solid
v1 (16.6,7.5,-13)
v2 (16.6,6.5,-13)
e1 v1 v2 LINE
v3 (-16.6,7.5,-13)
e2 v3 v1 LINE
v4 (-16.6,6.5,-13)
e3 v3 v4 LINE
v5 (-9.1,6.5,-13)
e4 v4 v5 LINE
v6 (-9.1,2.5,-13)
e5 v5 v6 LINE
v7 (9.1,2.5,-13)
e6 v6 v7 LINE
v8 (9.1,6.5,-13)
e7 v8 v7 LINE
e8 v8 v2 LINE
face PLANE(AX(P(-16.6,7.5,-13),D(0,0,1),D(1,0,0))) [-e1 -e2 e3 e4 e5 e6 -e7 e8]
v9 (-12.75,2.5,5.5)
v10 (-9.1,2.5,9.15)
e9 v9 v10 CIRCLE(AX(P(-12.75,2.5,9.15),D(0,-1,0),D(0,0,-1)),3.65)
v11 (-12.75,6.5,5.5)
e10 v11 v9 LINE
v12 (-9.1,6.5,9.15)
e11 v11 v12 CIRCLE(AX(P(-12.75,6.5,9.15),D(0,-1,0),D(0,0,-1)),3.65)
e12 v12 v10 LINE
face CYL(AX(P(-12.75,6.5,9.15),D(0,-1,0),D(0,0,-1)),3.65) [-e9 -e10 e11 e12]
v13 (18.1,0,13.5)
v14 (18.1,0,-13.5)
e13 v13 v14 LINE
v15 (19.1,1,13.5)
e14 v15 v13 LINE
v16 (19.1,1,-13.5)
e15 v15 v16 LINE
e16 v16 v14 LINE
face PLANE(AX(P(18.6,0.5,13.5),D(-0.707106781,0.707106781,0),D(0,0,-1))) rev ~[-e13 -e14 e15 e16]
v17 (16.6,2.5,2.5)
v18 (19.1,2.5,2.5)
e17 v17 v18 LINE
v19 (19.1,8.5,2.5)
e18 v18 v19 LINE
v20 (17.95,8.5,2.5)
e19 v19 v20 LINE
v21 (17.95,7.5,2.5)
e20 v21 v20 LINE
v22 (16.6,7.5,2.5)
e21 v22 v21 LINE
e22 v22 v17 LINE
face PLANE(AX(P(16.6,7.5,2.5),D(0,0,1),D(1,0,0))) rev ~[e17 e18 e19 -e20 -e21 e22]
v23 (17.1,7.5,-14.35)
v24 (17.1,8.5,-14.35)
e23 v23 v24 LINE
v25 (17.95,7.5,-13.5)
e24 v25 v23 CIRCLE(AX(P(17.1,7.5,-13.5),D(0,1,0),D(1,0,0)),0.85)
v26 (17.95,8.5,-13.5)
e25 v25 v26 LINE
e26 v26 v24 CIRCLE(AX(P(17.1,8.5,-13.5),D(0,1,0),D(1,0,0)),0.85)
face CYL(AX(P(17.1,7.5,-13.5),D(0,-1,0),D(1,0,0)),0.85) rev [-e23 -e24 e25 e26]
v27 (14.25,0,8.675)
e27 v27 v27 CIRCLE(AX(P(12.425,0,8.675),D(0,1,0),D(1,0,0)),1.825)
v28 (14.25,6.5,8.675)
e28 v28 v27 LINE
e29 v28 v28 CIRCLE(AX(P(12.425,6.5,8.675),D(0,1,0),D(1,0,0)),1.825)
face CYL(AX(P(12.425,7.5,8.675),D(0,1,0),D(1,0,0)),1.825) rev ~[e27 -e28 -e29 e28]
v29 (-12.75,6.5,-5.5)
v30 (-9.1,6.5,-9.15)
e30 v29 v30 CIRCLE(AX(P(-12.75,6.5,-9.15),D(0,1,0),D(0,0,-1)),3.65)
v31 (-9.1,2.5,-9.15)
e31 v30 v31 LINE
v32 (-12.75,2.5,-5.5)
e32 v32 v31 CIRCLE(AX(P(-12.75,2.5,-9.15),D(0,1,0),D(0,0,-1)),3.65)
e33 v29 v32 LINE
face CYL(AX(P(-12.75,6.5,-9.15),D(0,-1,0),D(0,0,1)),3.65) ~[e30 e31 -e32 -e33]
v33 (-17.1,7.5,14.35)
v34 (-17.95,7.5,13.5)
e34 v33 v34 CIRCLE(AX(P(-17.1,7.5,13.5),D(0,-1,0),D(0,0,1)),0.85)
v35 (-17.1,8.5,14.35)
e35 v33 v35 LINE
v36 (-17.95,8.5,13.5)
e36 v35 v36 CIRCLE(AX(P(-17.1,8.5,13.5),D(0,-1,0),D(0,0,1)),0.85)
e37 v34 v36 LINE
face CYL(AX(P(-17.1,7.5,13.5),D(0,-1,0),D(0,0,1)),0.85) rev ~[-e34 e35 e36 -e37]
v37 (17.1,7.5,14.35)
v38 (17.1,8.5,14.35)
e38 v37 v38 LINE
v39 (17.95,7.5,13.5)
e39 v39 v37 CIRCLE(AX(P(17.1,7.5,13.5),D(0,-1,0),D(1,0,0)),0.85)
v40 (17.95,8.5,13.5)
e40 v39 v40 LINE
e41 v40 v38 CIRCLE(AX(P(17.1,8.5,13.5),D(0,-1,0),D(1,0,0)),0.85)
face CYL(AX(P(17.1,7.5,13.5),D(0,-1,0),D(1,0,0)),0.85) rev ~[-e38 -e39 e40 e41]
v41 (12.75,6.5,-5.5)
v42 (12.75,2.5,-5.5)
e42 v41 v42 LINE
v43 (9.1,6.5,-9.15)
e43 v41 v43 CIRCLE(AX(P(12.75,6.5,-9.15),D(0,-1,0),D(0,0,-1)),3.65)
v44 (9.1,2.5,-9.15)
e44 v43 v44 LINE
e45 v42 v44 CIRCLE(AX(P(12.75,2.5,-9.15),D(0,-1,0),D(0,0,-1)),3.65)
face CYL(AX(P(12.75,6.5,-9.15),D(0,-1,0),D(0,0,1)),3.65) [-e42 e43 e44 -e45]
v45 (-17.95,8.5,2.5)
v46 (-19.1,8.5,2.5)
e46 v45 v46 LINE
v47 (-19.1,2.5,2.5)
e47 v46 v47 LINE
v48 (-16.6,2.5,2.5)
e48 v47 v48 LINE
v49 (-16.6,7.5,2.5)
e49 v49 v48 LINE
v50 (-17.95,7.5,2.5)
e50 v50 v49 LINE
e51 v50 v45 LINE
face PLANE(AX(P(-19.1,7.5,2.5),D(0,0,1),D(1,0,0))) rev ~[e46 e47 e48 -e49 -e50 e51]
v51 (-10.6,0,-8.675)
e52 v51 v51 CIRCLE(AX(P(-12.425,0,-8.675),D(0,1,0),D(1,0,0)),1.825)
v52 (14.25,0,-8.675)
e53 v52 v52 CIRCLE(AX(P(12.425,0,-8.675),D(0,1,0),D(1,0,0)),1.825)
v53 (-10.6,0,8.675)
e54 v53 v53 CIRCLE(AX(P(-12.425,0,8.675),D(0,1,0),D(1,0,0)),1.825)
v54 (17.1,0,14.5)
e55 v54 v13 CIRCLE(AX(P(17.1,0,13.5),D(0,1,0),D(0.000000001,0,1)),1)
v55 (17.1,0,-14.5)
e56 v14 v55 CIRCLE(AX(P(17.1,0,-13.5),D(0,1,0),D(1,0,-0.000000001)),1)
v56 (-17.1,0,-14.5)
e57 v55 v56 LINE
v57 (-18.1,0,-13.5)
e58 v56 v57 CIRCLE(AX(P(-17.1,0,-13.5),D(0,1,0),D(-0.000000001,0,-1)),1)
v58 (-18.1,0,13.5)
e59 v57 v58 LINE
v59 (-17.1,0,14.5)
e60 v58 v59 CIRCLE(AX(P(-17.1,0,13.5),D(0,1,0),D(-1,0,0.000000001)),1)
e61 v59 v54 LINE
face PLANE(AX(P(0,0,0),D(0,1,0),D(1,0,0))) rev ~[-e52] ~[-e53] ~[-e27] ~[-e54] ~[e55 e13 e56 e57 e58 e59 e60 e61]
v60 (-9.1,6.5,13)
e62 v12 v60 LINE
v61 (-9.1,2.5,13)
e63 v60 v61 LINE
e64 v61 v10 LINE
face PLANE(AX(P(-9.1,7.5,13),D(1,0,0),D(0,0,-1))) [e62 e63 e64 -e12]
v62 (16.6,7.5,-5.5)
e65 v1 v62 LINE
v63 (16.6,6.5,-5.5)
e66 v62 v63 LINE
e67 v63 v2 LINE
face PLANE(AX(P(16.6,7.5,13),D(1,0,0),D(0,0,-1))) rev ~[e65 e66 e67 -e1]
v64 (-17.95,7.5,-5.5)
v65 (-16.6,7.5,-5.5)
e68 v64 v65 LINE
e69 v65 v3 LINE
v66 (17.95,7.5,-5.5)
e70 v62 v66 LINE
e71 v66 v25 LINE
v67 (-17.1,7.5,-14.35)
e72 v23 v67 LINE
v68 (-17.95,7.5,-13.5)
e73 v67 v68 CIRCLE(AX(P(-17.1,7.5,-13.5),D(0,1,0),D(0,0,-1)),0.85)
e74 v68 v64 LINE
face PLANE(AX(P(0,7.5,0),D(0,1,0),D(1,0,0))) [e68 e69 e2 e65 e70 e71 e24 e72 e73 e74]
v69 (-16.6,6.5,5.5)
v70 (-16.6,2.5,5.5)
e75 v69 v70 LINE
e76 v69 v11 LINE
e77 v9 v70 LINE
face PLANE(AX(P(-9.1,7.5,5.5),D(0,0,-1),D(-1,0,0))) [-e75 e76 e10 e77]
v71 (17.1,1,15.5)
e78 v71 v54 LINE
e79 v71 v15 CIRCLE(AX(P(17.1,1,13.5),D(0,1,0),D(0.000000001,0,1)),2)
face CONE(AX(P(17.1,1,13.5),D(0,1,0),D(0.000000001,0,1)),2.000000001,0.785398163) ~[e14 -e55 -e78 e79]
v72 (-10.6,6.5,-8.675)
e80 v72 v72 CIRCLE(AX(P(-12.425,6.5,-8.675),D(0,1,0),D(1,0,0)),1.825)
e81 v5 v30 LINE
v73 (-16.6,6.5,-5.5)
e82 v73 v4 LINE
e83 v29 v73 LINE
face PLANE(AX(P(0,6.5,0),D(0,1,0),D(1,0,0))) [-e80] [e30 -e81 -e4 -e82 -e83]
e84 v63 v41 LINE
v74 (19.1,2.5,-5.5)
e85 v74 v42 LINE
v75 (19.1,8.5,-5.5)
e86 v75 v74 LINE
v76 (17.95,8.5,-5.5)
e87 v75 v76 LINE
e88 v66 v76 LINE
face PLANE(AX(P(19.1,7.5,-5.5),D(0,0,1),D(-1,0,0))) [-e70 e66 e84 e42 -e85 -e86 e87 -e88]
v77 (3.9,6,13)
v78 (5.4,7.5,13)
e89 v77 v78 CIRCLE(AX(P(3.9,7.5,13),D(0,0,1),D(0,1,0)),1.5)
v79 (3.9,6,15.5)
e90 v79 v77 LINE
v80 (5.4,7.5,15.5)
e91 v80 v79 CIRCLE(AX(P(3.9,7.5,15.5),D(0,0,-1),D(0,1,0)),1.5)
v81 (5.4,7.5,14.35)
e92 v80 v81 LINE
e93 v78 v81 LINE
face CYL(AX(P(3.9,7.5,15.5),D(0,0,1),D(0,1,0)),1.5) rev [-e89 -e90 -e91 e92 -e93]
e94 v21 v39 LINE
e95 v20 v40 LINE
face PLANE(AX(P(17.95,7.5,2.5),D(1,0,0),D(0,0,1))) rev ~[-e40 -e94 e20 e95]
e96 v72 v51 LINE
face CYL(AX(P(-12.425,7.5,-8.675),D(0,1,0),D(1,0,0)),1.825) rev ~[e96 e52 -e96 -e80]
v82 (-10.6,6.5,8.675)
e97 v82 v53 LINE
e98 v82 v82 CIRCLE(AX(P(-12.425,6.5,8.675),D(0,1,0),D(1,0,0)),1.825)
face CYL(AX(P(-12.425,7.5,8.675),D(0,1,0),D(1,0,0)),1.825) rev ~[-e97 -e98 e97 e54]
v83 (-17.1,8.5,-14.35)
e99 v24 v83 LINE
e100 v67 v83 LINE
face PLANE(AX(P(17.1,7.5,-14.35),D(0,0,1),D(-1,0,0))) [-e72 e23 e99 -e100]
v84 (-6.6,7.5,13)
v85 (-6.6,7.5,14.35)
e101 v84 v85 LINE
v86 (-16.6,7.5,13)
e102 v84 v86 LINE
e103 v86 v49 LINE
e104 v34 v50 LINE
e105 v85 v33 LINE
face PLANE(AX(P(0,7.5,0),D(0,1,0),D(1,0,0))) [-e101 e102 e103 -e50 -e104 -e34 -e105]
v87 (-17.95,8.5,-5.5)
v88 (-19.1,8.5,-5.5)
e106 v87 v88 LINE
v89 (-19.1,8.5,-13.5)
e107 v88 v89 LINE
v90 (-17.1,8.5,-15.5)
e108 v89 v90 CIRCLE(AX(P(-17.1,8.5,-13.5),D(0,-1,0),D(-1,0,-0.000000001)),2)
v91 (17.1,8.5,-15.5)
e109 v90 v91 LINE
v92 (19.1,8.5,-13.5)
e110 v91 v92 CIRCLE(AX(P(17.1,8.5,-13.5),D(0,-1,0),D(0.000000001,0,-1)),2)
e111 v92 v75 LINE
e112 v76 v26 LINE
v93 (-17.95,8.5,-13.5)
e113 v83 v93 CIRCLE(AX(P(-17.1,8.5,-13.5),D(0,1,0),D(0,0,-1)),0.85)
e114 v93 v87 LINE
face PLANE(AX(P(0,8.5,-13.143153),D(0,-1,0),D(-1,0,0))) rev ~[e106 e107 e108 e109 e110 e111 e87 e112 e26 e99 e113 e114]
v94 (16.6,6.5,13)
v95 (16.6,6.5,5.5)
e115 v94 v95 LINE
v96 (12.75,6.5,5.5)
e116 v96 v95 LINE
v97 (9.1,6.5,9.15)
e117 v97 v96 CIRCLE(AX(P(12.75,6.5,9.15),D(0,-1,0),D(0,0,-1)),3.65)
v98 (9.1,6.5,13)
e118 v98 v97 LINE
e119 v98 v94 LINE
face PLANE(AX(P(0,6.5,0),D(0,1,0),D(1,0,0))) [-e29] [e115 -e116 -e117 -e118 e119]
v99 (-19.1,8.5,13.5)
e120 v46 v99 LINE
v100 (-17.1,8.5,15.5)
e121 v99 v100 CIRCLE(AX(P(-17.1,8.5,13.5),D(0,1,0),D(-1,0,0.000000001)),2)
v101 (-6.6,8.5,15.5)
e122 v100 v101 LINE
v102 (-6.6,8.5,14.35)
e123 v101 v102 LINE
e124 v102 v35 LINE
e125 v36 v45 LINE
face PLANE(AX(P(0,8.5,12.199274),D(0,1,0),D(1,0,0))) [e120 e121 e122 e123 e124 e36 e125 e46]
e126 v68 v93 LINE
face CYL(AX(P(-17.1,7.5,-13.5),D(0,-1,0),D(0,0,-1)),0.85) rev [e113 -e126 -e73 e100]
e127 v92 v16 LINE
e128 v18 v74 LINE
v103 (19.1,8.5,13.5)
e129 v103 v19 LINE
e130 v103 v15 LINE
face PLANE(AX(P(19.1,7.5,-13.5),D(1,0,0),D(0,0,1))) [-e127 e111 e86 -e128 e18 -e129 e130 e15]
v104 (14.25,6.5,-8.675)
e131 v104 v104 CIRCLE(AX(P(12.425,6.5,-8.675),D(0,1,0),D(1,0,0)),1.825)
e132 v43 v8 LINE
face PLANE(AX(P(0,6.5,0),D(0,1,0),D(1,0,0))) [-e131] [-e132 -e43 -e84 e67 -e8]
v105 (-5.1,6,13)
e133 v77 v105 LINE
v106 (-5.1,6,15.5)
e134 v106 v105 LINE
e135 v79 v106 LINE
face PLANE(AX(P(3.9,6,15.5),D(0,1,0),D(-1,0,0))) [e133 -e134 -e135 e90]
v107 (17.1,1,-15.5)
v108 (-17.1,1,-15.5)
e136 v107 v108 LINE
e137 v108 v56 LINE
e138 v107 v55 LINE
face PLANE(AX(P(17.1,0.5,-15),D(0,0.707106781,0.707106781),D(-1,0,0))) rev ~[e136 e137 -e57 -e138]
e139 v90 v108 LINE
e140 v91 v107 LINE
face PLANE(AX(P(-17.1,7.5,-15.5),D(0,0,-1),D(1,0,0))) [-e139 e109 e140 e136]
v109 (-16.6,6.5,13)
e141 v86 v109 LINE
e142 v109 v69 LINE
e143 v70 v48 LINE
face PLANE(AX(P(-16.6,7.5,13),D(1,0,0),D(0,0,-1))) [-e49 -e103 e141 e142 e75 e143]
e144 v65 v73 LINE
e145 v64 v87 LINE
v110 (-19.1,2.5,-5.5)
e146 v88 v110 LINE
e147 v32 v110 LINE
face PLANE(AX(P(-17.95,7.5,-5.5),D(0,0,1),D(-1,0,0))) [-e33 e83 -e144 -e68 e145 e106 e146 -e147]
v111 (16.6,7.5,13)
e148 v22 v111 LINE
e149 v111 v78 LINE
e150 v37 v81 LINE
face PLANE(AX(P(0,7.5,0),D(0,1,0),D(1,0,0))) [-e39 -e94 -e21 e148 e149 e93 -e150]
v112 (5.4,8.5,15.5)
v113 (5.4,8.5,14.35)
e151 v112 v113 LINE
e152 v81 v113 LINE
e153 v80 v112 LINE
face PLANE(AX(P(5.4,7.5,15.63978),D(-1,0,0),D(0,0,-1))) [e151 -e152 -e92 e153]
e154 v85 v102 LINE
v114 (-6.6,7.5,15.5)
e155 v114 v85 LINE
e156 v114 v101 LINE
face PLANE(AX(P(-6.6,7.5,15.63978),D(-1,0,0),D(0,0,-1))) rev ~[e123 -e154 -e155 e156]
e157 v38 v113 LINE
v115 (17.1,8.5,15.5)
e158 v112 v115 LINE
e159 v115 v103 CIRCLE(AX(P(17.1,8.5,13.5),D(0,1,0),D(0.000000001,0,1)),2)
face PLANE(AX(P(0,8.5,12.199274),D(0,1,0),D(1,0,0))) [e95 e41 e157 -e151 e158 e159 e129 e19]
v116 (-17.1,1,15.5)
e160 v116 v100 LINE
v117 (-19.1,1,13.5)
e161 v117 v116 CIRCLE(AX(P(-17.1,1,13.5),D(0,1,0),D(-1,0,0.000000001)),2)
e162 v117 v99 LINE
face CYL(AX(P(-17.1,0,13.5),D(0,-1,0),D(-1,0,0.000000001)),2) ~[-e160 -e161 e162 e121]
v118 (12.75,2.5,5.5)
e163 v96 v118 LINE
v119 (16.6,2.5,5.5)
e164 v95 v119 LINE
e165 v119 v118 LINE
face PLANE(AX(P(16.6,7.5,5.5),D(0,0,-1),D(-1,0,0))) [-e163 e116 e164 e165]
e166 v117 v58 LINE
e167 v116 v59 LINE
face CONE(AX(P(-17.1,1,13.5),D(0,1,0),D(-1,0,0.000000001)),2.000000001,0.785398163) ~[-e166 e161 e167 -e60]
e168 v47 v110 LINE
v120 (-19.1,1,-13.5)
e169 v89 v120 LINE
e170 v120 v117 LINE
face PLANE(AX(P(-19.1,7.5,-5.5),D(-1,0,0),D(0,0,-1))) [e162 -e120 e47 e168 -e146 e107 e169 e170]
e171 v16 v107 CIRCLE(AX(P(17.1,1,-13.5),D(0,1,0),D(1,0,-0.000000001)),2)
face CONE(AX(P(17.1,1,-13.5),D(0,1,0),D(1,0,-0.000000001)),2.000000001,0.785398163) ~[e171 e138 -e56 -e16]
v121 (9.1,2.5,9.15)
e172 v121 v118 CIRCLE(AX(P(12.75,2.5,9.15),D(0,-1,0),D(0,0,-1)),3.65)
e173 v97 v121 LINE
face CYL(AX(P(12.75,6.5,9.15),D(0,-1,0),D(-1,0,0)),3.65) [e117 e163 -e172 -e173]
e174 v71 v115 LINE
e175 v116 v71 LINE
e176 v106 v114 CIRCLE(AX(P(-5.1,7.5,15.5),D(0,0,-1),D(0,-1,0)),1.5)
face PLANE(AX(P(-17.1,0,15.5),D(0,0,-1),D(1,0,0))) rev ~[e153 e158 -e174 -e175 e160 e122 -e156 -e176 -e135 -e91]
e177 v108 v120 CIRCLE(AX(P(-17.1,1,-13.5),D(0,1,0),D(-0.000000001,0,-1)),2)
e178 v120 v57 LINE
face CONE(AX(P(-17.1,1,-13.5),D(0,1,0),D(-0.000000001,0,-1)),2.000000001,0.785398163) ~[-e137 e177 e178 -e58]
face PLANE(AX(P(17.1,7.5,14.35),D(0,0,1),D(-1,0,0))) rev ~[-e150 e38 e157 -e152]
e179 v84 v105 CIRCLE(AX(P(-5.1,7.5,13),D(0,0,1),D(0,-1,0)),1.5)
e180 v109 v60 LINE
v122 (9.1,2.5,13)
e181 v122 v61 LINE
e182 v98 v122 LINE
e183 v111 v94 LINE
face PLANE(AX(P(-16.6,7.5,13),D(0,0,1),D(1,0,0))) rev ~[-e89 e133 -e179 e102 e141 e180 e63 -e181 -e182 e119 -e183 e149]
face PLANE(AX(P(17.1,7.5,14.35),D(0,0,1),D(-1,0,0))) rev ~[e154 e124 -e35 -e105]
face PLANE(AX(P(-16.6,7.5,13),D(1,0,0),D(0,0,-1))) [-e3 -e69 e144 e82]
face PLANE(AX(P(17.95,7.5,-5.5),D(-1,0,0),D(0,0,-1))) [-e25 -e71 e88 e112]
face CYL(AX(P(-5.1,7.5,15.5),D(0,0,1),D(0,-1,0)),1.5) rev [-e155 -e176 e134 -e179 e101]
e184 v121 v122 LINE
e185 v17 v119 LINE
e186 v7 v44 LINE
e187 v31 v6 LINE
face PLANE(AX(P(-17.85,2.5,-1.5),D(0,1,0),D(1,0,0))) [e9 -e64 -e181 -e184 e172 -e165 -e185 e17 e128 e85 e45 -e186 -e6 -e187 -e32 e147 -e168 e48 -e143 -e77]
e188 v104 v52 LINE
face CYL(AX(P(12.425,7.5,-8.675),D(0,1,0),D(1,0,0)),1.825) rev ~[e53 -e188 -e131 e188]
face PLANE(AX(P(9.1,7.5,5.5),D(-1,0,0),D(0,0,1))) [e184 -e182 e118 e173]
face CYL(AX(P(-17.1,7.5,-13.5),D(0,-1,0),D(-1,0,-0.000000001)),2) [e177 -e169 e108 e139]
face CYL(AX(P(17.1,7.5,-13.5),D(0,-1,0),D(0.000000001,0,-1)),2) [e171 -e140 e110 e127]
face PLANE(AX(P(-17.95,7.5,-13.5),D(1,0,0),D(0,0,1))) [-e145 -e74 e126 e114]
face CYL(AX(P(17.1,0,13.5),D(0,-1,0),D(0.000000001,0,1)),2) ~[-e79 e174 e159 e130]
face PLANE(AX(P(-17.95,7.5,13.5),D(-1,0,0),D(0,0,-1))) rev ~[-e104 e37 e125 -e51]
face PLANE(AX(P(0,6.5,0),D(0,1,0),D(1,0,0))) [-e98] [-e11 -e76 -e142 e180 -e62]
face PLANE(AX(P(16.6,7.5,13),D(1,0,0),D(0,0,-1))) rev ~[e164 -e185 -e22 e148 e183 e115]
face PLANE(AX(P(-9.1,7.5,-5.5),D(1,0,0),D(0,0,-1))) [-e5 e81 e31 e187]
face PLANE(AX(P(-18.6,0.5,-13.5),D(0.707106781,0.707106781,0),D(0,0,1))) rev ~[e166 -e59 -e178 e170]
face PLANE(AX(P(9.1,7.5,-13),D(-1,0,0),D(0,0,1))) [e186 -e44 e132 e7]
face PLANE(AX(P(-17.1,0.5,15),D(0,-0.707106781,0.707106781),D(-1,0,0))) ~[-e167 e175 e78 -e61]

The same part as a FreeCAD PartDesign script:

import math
import FreeCAD as App
import Part
import Sketcher
from FreeCAD import Vector


def edges_at(feature, points):
    """Names of the edges that pass closest to the given points."""
    edges = feature.Shape.Edges
    near = lambda p: min(range(len(edges)), key=lambda i: edges[i].distToShape(Part.Vertex(*p))[0])
    return sorted({f"Edge{near(p) + 1}" for p in points})

doc = App.newDocument("Part")
body = doc.addObject("PartDesign::Body", "Body")

sketch1 = body.newObject("Sketcher::SketchObject", "Sketch")
sketch1.AttachmentSupport = (doc.getObject("XZ_Plane"), [""])
sketch1.MapMode = "FlatFace"
sketch1.addGeometry(Part.LineSegment(Vector(-17.1, 15.5, 0), Vector(17.1, 15.5, 0)), False)
sketch1.addGeometry(Part.ArcOfCircle(Part.Circle(Vector(17.1, 13.5, 0), Vector(0, 0, 1), 2), math.radians(0), math.radians(90)), False)
sketch1.addGeometry(Part.LineSegment(Vector(19.1, 13.5, 0), Vector(19.1, -13.5, 0)), False)
sketch1.addGeometry(Part.ArcOfCircle(Part.Circle(Vector(17.1, -13.5, 0), Vector(0, 0, 1), 2), math.radians(-90), math.radians(0)), False)
sketch1.addGeometry(Part.LineSegment(Vector(17.1, -15.5, 0), Vector(-17.1, -15.5, 0)), False)
sketch1.addGeometry(Part.ArcOfCircle(Part.Circle(Vector(-17.1, -13.5, 0), Vector(0, 0, 1), 2), math.radians(-180), math.radians(-90)), False)
sketch1.addGeometry(Part.LineSegment(Vector(-19.1, -13.5, 0), Vector(-19.1, 13.5, 0)), False)
sketch1.addGeometry(Part.ArcOfCircle(Part.Circle(Vector(-17.1, 13.5, 0), Vector(0, 0, 1), 2), math.radians(90), math.radians(180)), False)
sketch1.addConstraint(Sketcher.Constraint("Tangent", 0, 2, 1, 2))
sketch1.addConstraint(Sketcher.Constraint("Tangent", 1, 1, 2, 1))
sketch1.addConstraint(Sketcher.Constraint("Tangent", 2, 2, 3, 2))
sketch1.addConstraint(Sketcher.Constraint("Tangent", 3, 1, 4, 1))
sketch1.addConstraint(Sketcher.Constraint("Tangent", 4, 2, 5, 2))
sketch1.addConstraint(Sketcher.Constraint("Tangent", 5, 1, 6, 1))
sketch1.addConstraint(Sketcher.Constraint("Tangent", 6, 2, 7, 2))
sketch1.addConstraint(Sketcher.Constraint("Tangent", 7, 1, 0, 1))
sketch1.addConstraint(Sketcher.Constraint("Horizontal", 0))
sketch1.addConstraint(Sketcher.Constraint("Vertical", 2))
sketch1.addConstraint(Sketcher.Constraint("Horizontal", 4))
sketch1.addConstraint(Sketcher.Constraint("Vertical", 6))
sketch1.addConstraint(Sketcher.Constraint("Equal", 1, 3))
sketch1.addConstraint(Sketcher.Constraint("Equal", 3, 5))
sketch1.addConstraint(Sketcher.Constraint("Equal", 5, 7))
sketch1.addConstraint(Sketcher.Constraint("Symmetric", 1, 3, 5, 3, -1, 1))
sketch1.addConstraint(Sketcher.Constraint("Radius", 1, 2.0))
sketch1.addConstraint(Sketcher.Constraint("DistanceY", 2, 2, 2, 1, 27.0))
sketch1.addConstraint(Sketcher.Constraint("DistanceX", 0, 1, 0, 2, 34.2))
pad1 = body.newObject("PartDesign::Pad", "Pad")
pad1.Profile = sketch1
pad1.Length = 7.5
pad1.Reversed = True

sketch2 = body.newObject("Sketcher::SketchObject", "Sketch001")
sketch2.AttachmentSupport = (doc.getObject("XZ_Plane"), [""])
sketch2.MapMode = "FlatFace"
sketch2.AttachmentOffset = App.Placement(Vector(0, 0, -7.5), App.Rotation())
sketch2.addGeometry(Part.LineSegment(Vector(-9.1, -5.5, 0), Vector(-16.6, -5.5, 0)), False)
sketch2.addGeometry(Part.LineSegment(Vector(-16.6, -5.5, 0), Vector(-16.6, 5.5, 0)), False)
sketch2.addGeometry(Part.LineSegment(Vector(-16.6, 5.5, 0), Vector(-9.1, 5.5, 0)), False)
sketch2.addGeometry(Part.LineSegment(Vector(-9.1, 5.5, 0), Vector(-9.1, 13, 0)), False)
sketch2.addGeometry(Part.LineSegment(Vector(-9.1, 13, 0), Vector(9.1, 13, 0)), False)
sketch2.addGeometry(Part.LineSegment(Vector(9.1, 13, 0), Vector(9.1, 5.5, 0)), False)
sketch2.addGeometry(Part.LineSegment(Vector(9.1, 5.5, 0), Vector(16.6, 5.5, 0)), False)
sketch2.addGeometry(Part.LineSegment(Vector(16.6, 5.5, 0), Vector(16.6, -5.5, 0)), False)
sketch2.addGeometry(Part.LineSegment(Vector(16.6, -5.5, 0), Vector(9.1, -5.5, 0)), False)
sketch2.addGeometry(Part.LineSegment(Vector(9.1, -5.5, 0), Vector(9.1, -13, 0)), False)
sketch2.addGeometry(Part.LineSegment(Vector(9.1, -13, 0), Vector(-9.1, -13, 0)), False)
sketch2.addGeometry(Part.LineSegment(Vector(-9.1, -13, 0), Vector(-9.1, -5.5, 0)), False)
sketch2.addConstraint(Sketcher.Constraint("Coincident", 0, 2, 1, 1))
sketch2.addConstraint(Sketcher.Constraint("Coincident", 1, 2, 2, 1))
sketch2.addConstraint(Sketcher.Constraint("Coincident", 2, 2, 3, 1))
sketch2.addConstraint(Sketcher.Constraint("Coincident", 3, 2, 4, 1))
sketch2.addConstraint(Sketcher.Constraint("Coincident", 4, 2, 5, 1))
sketch2.addConstraint(Sketcher.Constraint("Coincident", 5, 2, 6, 1))
sketch2.addConstraint(Sketcher.Constraint("Coincident", 6, 2, 7, 1))
sketch2.addConstraint(Sketcher.Constraint("Coincident", 7, 2, 8, 1))
sketch2.addConstraint(Sketcher.Constraint("Coincident", 8, 2, 9, 1))
sketch2.addConstraint(Sketcher.Constraint("Coincident", 9, 2, 10, 1))
sketch2.addConstraint(Sketcher.Constraint("Coincident", 10, 2, 11, 1))
sketch2.addConstraint(Sketcher.Constraint("Coincident", 11, 2, 0, 1))
sketch2.addConstraint(Sketcher.Constraint("Horizontal", 0))
sketch2.addConstraint(Sketcher.Constraint("Vertical", 1))
sketch2.addConstraint(Sketcher.Constraint("Horizontal", 2))
sketch2.addConstraint(Sketcher.Constraint("Vertical", 3))
sketch2.addConstraint(Sketcher.Constraint("Horizontal", 4))
sketch2.addConstraint(Sketcher.Constraint("Vertical", 5))
sketch2.addConstraint(Sketcher.Constraint("Horizontal", 6))
sketch2.addConstraint(Sketcher.Constraint("Vertical", 7))
sketch2.addConstraint(Sketcher.Constraint("Horizontal", 8))
sketch2.addConstraint(Sketcher.Constraint("Vertical", 9))
sketch2.addConstraint(Sketcher.Constraint("Horizontal", 10))
sketch2.addConstraint(Sketcher.Constraint("Vertical", 11))
sketch2.addConstraint(Sketcher.Constraint("Symmetric", 0, 2, 6, 2, -1, 1))
sketch2.addConstraint(Sketcher.Constraint("Symmetric", 2, 2, 8, 2, -1, 1))
sketch2.addConstraint(Sketcher.Constraint("Symmetric", 4, 2, 10, 2, -1, 1))
sketch2.addConstraint(Sketcher.Constraint("Symmetric", 2, 2, 5, 2, -2))
sketch2.addConstraint(Sketcher.Constraint("Equal", 8, 3))
sketch2.addConstraint(Sketcher.Constraint("DistanceY", 1, 1, 1, 2, 11.0))
sketch2.addConstraint(Sketcher.Constraint("DistanceX", 0, 2, 0, 1, 7.5))
sketch2.addConstraint(Sketcher.Constraint("DistanceX", 4, 1, 4, 2, 18.2))
pocket1 = body.newObject("PartDesign::Pocket", "Pocket")
pocket1.Profile = sketch2
pocket1.Length = 5
pocket1.Reversed = True

sketch3 = body.newObject("Sketcher::SketchObject", "Sketch002")
sketch3.AttachmentSupport = (doc.getObject("XZ_Plane"), [""])
sketch3.MapMode = "FlatFace"
sketch3.AttachmentOffset = App.Placement(Vector(0, 0, -7.5), App.Rotation())
sketch3.addGeometry(Part.Circle(Vector(-12.425, -8.675, 0), Vector(0, 0, 1), 1.825), False)
sketch3.addGeometry(Part.Circle(Vector(12.425, -8.675, 0), Vector(0, 0, 1), 1.825), False)
sketch3.addGeometry(Part.Circle(Vector(12.425, 8.675, 0), Vector(0, 0, 1), 1.825), False)
sketch3.addGeometry(Part.Circle(Vector(-12.425, 8.675, 0), Vector(0, 0, 1), 1.825), False)
sketch3.addConstraint(Sketcher.Constraint("Equal", 0, 1))
sketch3.addConstraint(Sketcher.Constraint("Equal", 1, 2))
sketch3.addConstraint(Sketcher.Constraint("Equal", 2, 3))
sketch3.addConstraint(Sketcher.Constraint("Symmetric", 0, 3, 2, 3, -1, 1))
sketch3.addConstraint(Sketcher.Constraint("Symmetric", 1, 3, 3, 3, -1, 1))
sketch3.addConstraint(Sketcher.Constraint("Symmetric", 0, 3, 1, 3, -2))
sketch3.addConstraint(Sketcher.Constraint("Diameter", 0, 3.65))
sketch3.addConstraint(Sketcher.Constraint("DistanceX", 0, 3, 1, 3, 24.85))
sketch3.addConstraint(Sketcher.Constraint("DistanceY", 1, 3, 2, 3, 17.35))
pocket2 = body.newObject("PartDesign::Pocket", "Pocket001")
pocket2.Profile = sketch3
pocket2.Length = 13.5
pocket2.Reversed = True

sketch4 = body.newObject("Sketcher::SketchObject", "Sketch003")
sketch4.AttachmentSupport = (doc.getObject("XZ_Plane"), [""])
sketch4.MapMode = "FlatFace"
sketch4.AttachmentOffset = App.Placement(Vector(0, 0, -7.5), App.Rotation())
sketch4.addGeometry(Part.LineSegment(Vector(-16.6, -13, 0), Vector(-16.6, 13, 0)), False)
sketch4.addGeometry(Part.LineSegment(Vector(-16.6, 13, 0), Vector(16.6, 13, 0)), False)
sketch4.addGeometry(Part.LineSegment(Vector(16.6, 13, 0), Vector(16.6, -13, 0)), False)
sketch4.addGeometry(Part.LineSegment(Vector(16.6, -13, 0), Vector(-16.6, -13, 0)), False)
sketch4.addConstraint(Sketcher.Constraint("Coincident", 0, 2, 1, 1))
sketch4.addConstraint(Sketcher.Constraint("Coincident", 1, 2, 2, 1))
sketch4.addConstraint(Sketcher.Constraint("Coincident", 2, 2, 3, 1))
sketch4.addConstraint(Sketcher.Constraint("Coincident", 3, 2, 0, 1))
sketch4.addConstraint(Sketcher.Constraint("Vertical", 0))
sketch4.addConstraint(Sketcher.Constraint("Horizontal", 1))
sketch4.addConstraint(Sketcher.Constraint("Vertical", 2))
sketch4.addConstraint(Sketcher.Constraint("Horizontal", 3))
sketch4.addConstraint(Sketcher.Constraint("Symmetric", 0, 2, 2, 2, -1, 1))
sketch4.addConstraint(Sketcher.Constraint("DistanceY", 0, 1, 0, 2, 26.0))
sketch4.addConstraint(Sketcher.Constraint("DistanceX", 1, 1, 1, 2, 33.2))
pocket3 = body.newObject("PartDesign::Pocket", "Pocket002")
pocket3.Profile = sketch4
pocket3.Length = 1
pocket3.Reversed = True

sketch5 = body.newObject("Sketcher::SketchObject", "Sketch004")
sketch5.AttachmentSupport = (doc.getObject("XZ_Plane"), [""])
sketch5.MapMode = "FlatFace"
sketch5.AttachmentOffset = App.Placement(Vector(0, 0, -7.5), App.Rotation())
sketch5.addGeometry(Part.LineSegment(Vector(-19.1, -5.5, 0), Vector(-19.1, 2.5, 0)), False)
sketch5.addGeometry(Part.LineSegment(Vector(-19.1, 2.5, 0), Vector(-16.6, 2.5, 0)), False)
sketch5.addGeometry(Part.LineSegment(Vector(-16.6, 2.5, 0), Vector(-16.6, -5.5, 0)), False)
sketch5.addGeometry(Part.LineSegment(Vector(-16.6, -5.5, 0), Vector(-19.1, -5.5, 0)), False)
sketch5.addGeometry(Part.LineSegment(Vector(16.6, -5.5, 0), Vector(16.6, 2.5, 0)), False)
sketch5.addGeometry(Part.LineSegment(Vector(16.6, 2.5, 0), Vector(19.1, 2.5, 0)), False)
sketch5.addGeometry(Part.LineSegment(Vector(19.1, 2.5, 0), Vector(19.1, -5.5, 0)), False)
sketch5.addGeometry(Part.LineSegment(Vector(19.1, -5.5, 0), Vector(16.6, -5.5, 0)), False)
sketch5.addConstraint(Sketcher.Constraint("Coincident", 0, 2, 1, 1))
sketch5.addConstraint(Sketcher.Constraint("Coincident", 1, 2, 2, 1))
sketch5.addConstraint(Sketcher.Constraint("Coincident", 2, 2, 3, 1))
sketch5.addConstraint(Sketcher.Constraint("Coincident", 3, 2, 0, 1))
sketch5.addConstraint(Sketcher.Constraint("Coincident", 4, 2, 5, 1))
sketch5.addConstraint(Sketcher.Constraint("Coincident", 5, 2, 6, 1))
sketch5.addConstraint(Sketcher.Constraint("Coincident", 6, 2, 7, 1))
sketch5.addConstraint(Sketcher.Constraint("Coincident", 7, 2, 4, 1))
sketch5.addConstraint(Sketcher.Constraint("Vertical", 0))
sketch5.addConstraint(Sketcher.Constraint("Horizontal", 1))
sketch5.addConstraint(Sketcher.Constraint("Vertical", 2))
sketch5.addConstraint(Sketcher.Constraint("Horizontal", 3))
sketch5.addConstraint(Sketcher.Constraint("Vertical", 4))
sketch5.addConstraint(Sketcher.Constraint("Horizontal", 5))
sketch5.addConstraint(Sketcher.Constraint("Vertical", 6))
sketch5.addConstraint(Sketcher.Constraint("Horizontal", 7))
sketch5.addConstraint(Sketcher.Constraint("Symmetric", 1, 2, 4, 2, -2))
sketch5.addConstraint(Sketcher.Constraint("Symmetric", 3, 2, 6, 2, -2))
sketch5.addConstraint(Sketcher.Constraint("DistanceY", 0, 1, 0, 2, 8.0))
sketch5.addConstraint(Sketcher.Constraint("DistanceX", 1, 1, 1, 2, 2.5))
sketch5.addConstraint(Sketcher.Constraint("DistanceX", 0, 2, -1, 1, 19.1))
sketch5.addConstraint(Sketcher.Constraint("DistanceY", -1, 1, 0, 2, 2.5))
pocket4 = body.newObject("PartDesign::Pocket", "Pocket003")
pocket4.Profile = sketch5
pocket4.Length = 5
pocket4.Reversed = True

sketch6 = body.newObject("Sketcher::SketchObject", "Sketch005")
sketch6.AttachmentSupport = (doc.getObject("XZ_Plane"), [""])
sketch6.MapMode = "FlatFace"
sketch6.AttachmentOffset = App.Placement(Vector(0, 0, -7.5), App.Rotation())
sketch6.addGeometry(Part.LineSegment(Vector(-19.1, -5.5, 0), Vector(-17.95, -5.5, 0)), False)
sketch6.addGeometry(Part.LineSegment(Vector(-17.95, -5.5, 0), Vector(-17.95, -13.5, 0)), False)
sketch6.addGeometry(Part.ArcOfCircle(Part.Circle(Vector(-17.1, -13.5, 0), Vector(0, 0, 1), 0.85), math.radians(180), math.radians(270)), False)
sketch6.addGeometry(Part.LineSegment(Vector(-17.1, -14.35, 0), Vector(17.1, -14.35, 0)), False)
sketch6.addGeometry(Part.ArcOfCircle(Part.Circle(Vector(17.1, -13.5, 0), Vector(0, 0, 1), 0.85), math.radians(-90), math.radians(0)), False)
sketch6.addGeometry(Part.LineSegment(Vector(17.95, -13.5, 0), Vector(17.95, -5.5, 0)), False)
sketch6.addGeometry(Part.LineSegment(Vector(17.95, -5.5, 0), Vector(19.1, -5.5, 0)), False)
sketch6.addGeometry(Part.LineSegment(Vector(19.1, -5.5, 0), Vector(19.1, -13.5, 0)), False)
sketch6.addGeometry(Part.ArcOfCircle(Part.Circle(Vector(17.1, -13.5, 0), Vector(0, 0, 1), 2), math.radians(-90), math.radians(0)), False)
sketch6.addGeometry(Part.LineSegment(Vector(17.1, -15.5, 0), Vector(-17.1, -15.5, 0)), False)
sketch6.addGeometry(Part.ArcOfCircle(Part.Circle(Vector(-17.1, -13.5, 0), Vector(0, 0, 1), 2), math.radians(-180), math.radians(-90)), False)
sketch6.addGeometry(Part.LineSegment(Vector(-19.1, -13.5, 0), Vector(-19.1, -5.5, 0)), False)
sketch6.addGeometry(Part.LineSegment(Vector(-17.95, 2.5, 0), Vector(-19.1, 2.5, 0)), False)
sketch6.addGeometry(Part.LineSegment(Vector(-19.1, 2.5, 0), Vector(-19.1, 13.5, 0)), False)
sketch6.addGeometry(Part.ArcOfCircle(Part.Circle(Vector(-17.1, 13.5, 0), Vector(0, 0, 1), 2), math.radians(90), math.radians(180)), False)
sketch6.addGeometry(Part.LineSegment(Vector(-17.1, 15.5, 0), Vector(17.1, 15.5, 0)), False)
sketch6.addGeometry(Part.ArcOfCircle(Part.Circle(Vector(17.1, 13.5, 0), Vector(0, 0, 1), 2), math.radians(0), math.radians(90)), False)
sketch6.addGeometry(Part.LineSegment(Vector(19.1, 13.5, 0), Vector(19.1, 2.5, 0)), False)
sketch6.addGeometry(Part.LineSegment(Vector(19.1, 2.5, 0), Vector(17.95, 2.5, 0)), False)
sketch6.addGeometry(Part.LineSegment(Vector(17.95, 2.5, 0), Vector(17.95, 13.5, 0)), False)
sketch6.addGeometry(Part.ArcOfCircle(Part.Circle(Vector(17.1, 13.5, 0), Vector(0, 0, 1), 0.85), math.radians(0), math.radians(90)), False)
sketch6.addGeometry(Part.LineSegment(Vector(17.1, 14.35, 0), Vector(-17.1, 14.35, 0)), False)
sketch6.addGeometry(Part.ArcOfCircle(Part.Circle(Vector(-17.1, 13.5, 0), Vector(0, 0, 1), 0.85), math.radians(90), math.radians(180)), False)
sketch6.addGeometry(Part.LineSegment(Vector(-17.95, 13.5, 0), Vector(-17.95, 2.5, 0)), False)
sketch6.addConstraint(Sketcher.Constraint("Coincident", 0, 2, 1, 1))
sketch6.addConstraint(Sketcher.Constraint("Tangent", 1, 2, 2, 1))
sketch6.addConstraint(Sketcher.Constraint("Tangent", 2, 2, 3, 1))
sketch6.addConstraint(Sketcher.Constraint("Tangent", 3, 2, 4, 1))
sketch6.addConstraint(Sketcher.Constraint("Tangent", 4, 2, 5, 1))
sketch6.addConstraint(Sketcher.Constraint("Coincident", 5, 2, 6, 1))
sketch6.addConstraint(Sketcher.Constraint("Coincident", 6, 2, 7, 1))
sketch6.addConstraint(Sketcher.Constraint("Tangent", 7, 2, 8, 2))
sketch6.addConstraint(Sketcher.Constraint("Tangent", 8, 1, 9, 1))
sketch6.addConstraint(Sketcher.Constraint("Tangent", 9, 2, 10, 2))
sketch6.addConstraint(Sketcher.Constraint("Tangent", 10, 1, 11, 1))
sketch6.addConstraint(Sketcher.Constraint("Coincident", 11, 2, 0, 1))
sketch6.addConstraint(Sketcher.Constraint("Coincident", 12, 2, 13, 1))
sketch6.addConstraint(Sketcher.Constraint("Tangent", 13, 2, 14, 2))
sketch6.addConstraint(Sketcher.Constraint("Tangent", 14, 1, 15, 1))
sketch6.addConstraint(Sketcher.Constraint("Tangent", 15, 2, 16, 2))
sketch6.addConstraint(Sketcher.Constraint("Tangent", 16, 1, 17, 1))
sketch6.addConstraint(Sketcher.Constraint("Coincident", 17, 2, 18, 1))
sketch6.addConstraint(Sketcher.Constraint("Coincident", 18, 2, 19, 1))
sketch6.addConstraint(Sketcher.Constraint("Tangent", 19, 2, 20, 1))
sketch6.addConstraint(Sketcher.Constraint("Tangent", 20, 2, 21, 1))
sketch6.addConstraint(Sketcher.Constraint("Tangent", 21, 2, 22, 1))
sketch6.addConstraint(Sketcher.Constraint("Tangent", 22, 2, 23, 1))
sketch6.addConstraint(Sketcher.Constraint("Coincident", 23, 2, 12, 1))
sketch6.addConstraint(Sketcher.Constraint("Horizontal", 0))
sketch6.addConstraint(Sketcher.Constraint("Vertical", 1))
sketch6.addConstraint(Sketcher.Constraint("Horizontal", 3))
sketch6.addConstraint(Sketcher.Constraint("Vertical", 5))
sketch6.addConstraint(Sketcher.Constraint("Horizontal", 6))
sketch6.addConstraint(Sketcher.Constraint("Vertical", 7))
sketch6.addConstraint(Sketcher.Constraint("Horizontal", 9))
sketch6.addConstraint(Sketcher.Constraint("Vertical", 11))
sketch6.addConstraint(Sketcher.Constraint("Horizontal", 12))
sketch6.addConstraint(Sketcher.Constraint("Vertical", 13))
sketch6.addConstraint(Sketcher.Constraint("Horizontal", 15))
sketch6.addConstraint(Sketcher.Constraint("Vertical", 17))
sketch6.addConstraint(Sketcher.Constraint("Horizontal", 18))
sketch6.addConstraint(Sketcher.Constraint("Vertical", 19))
sketch6.addConstraint(Sketcher.Constraint("Horizontal", 21))
sketch6.addConstraint(Sketcher.Constraint("Vertical", 23))
sketch6.addConstraint(Sketcher.Constraint("Coincident", 8, 3, 4, 3))
sketch6.addConstraint(Sketcher.Constraint("Coincident", 10, 3, 2, 3))
sketch6.addConstraint(Sketcher.Constraint("Coincident", 20, 3, 16, 3))
sketch6.addConstraint(Sketcher.Constraint("Coincident", 22, 3, 14, 3))
sketch6.addConstraint(Sketcher.Constraint("Equal", 2, 4))
sketch6.addConstraint(Sketcher.Constraint("Equal", 10, 14))
sketch6.addConstraint(Sketcher.Constraint("Equal", 14, 16))
sketch6.addConstraint(Sketcher.Constraint("Equal", 4, 20))
sketch6.addConstraint(Sketcher.Constraint("Symmetric", 4, 3, 14, 3, -1, 1))
sketch6.addConstraint(Sketcher.Constraint("Symmetric", 0, 2, 5, 2, -2))
sketch6.addConstraint(Sketcher.Constraint("Symmetric", 12, 2, 17, 2, -2))
sketch6.addConstraint(Sketcher.Constraint("Radius", 8, 2.0))
sketch6.addConstraint(Sketcher.Constraint("DistanceY", 1, 2, 1, 1, 8.0))
sketch6.addConstraint(Sketcher.Constraint("DistanceY", 13, 1, 13, 2, 11.0))
sketch6.addConstraint(Sketcher.Constraint("Radius", 2, 0.85))
sketch6.addConstraint(Sketcher.Constraint("DistanceX", 3, 1, 3, 2, 34.2))
sketch6.addConstraint(Sketcher.Constraint("DistanceY", 10, 3, 14, 3, 27.0))
pad2 = body.newObject("PartDesign::Pad", "Pad001")
pad2.Profile = sketch6
pad2.Length = 1
pad2.Reversed = True

sketch7 = body.newObject("Sketcher::SketchObject", "Sketch006")
sketch7.AttachmentSupport = (doc.getObject("XY_Plane"), [""])
sketch7.MapMode = "FlatFace"
sketch7.AttachmentOffset = App.Placement(Vector(0, 0, 15.5), App.Rotation())
sketch7.addGeometry(Part.LineSegment(Vector(3.9, 9, 0), Vector(-5.1, 9, 0)), False)
sketch7.addGeometry(Part.ArcOfCircle(Part.Circle(Vector(-5.1, 7.5, 0), Vector(0, 0, 1), 1.5), math.radians(90), math.radians(270)), False)
sketch7.addGeometry(Part.LineSegment(Vector(-5.1, 6, 0), Vector(3.9, 6, 0)), False)
sketch7.addGeometry(Part.ArcOfCircle(Part.Circle(Vector(3.9, 7.5, 0), Vector(0, 0, 1), 1.5), math.radians(-90), math.radians(90)), False)
sketch7.addConstraint(Sketcher.Constraint("Tangent", 0, 2, 1, 1))
sketch7.addConstraint(Sketcher.Constraint("Tangent", 1, 2, 2, 1))
sketch7.addConstraint(Sketcher.Constraint("Tangent", 2, 2, 3, 1))
sketch7.addConstraint(Sketcher.Constraint("Tangent", 3, 2, 0, 1))
sketch7.addConstraint(Sketcher.Constraint("Horizontal", 0))
sketch7.addConstraint(Sketcher.Constraint("Horizontal", 2))
sketch7.addConstraint(Sketcher.Constraint("Radius", 1, 1.5))
sketch7.addConstraint(Sketcher.Constraint("DistanceX", 0, 2, 0, 1, 9.0))
sketch7.addConstraint(Sketcher.Constraint("DistanceY", -1, 1, 0, 2, 9.0))
sketch7.addConstraint(Sketcher.Constraint("DistanceX", 1, 3, -1, 1, 5.1))
pocket5 = body.newObject("PartDesign::Pocket", "Pocket004")
pocket5.Profile = sketch7
pocket5.Length = 10

sketch8 = body.newObject("Sketcher::SketchObject", "Sketch007")
sketch8.AttachmentSupport = (doc.getObject("XZ_Plane"), [""])
sketch8.MapMode = "FlatFace"
sketch8.AttachmentOffset = App.Placement(Vector(0, 0, -7.5), App.Rotation())
sketch8.addGeometry(Part.LineSegment(Vector(-6.6, 14.35, 0), Vector(-6.6, 15.63978, 0)), False)
sketch8.addGeometry(Part.LineSegment(Vector(-6.6, 15.63978, 0), Vector(-5.682482, 15.63978, 0)), False)
sketch8.addGeometry(Part.LineSegment(Vector(-5.682482, 15.63978, 0), Vector(-5.682482, 14.35, 0)), False)
sketch8.addGeometry(Part.LineSegment(Vector(-5.682482, 14.35, 0), Vector(-6.6, 14.35, 0)), False)
sketch8.addGeometry(Part.LineSegment(Vector(4.695597, 14.35, 0), Vector(4.695597, 15.63978, 0)), False)
sketch8.addGeometry(Part.LineSegment(Vector(4.695597, 15.63978, 0), Vector(5.4, 15.63978, 0)), False)
sketch8.addGeometry(Part.LineSegment(Vector(5.4, 15.63978, 0), Vector(5.4, 14.35, 0)), False)
sketch8.addGeometry(Part.LineSegment(Vector(5.4, 14.35, 0), Vector(4.695597, 14.35, 0)), False)
sketch8.addConstraint(Sketcher.Constraint("Coincident", 0, 2, 1, 1))
sketch8.addConstraint(Sketcher.Constraint("Coincident", 1, 2, 2, 1))
sketch8.addConstraint(Sketcher.Constraint("Coincident", 2, 2, 3, 1))
sketch8.addConstraint(Sketcher.Constraint("Coincident", 3, 2, 0, 1))
sketch8.addConstraint(Sketcher.Constraint("Coincident", 4, 2, 5, 1))
sketch8.addConstraint(Sketcher.Constraint("Coincident", 5, 2, 6, 1))
sketch8.addConstraint(Sketcher.Constraint("Coincident", 6, 2, 7, 1))
sketch8.addConstraint(Sketcher.Constraint("Coincident", 7, 2, 4, 1))
sketch8.addConstraint(Sketcher.Constraint("Vertical", 0))
sketch8.addConstraint(Sketcher.Constraint("Horizontal", 1))
sketch8.addConstraint(Sketcher.Constraint("Vertical", 2))
sketch8.addConstraint(Sketcher.Constraint("Horizontal", 3))
sketch8.addConstraint(Sketcher.Constraint("Vertical", 4))
sketch8.addConstraint(Sketcher.Constraint("Horizontal", 5))
sketch8.addConstraint(Sketcher.Constraint("Vertical", 6))
sketch8.addConstraint(Sketcher.Constraint("Horizontal", 7))
sketch8.addConstraint(Sketcher.Constraint("Horizontal", 1, 2, 4, 2))
sketch8.addConstraint(Sketcher.Constraint("Horizontal", 3, 2, 6, 2))
sketch8.addConstraint(Sketcher.Constraint("DistanceX", 0, 2, 5, 2, 12.0))
sketch8.addConstraint(Sketcher.Constraint("DistanceX", 0, 2, -1, 1, 6.6))
sketch8.addConstraint(Sketcher.Constraint("DistanceY", -1, 1, 2, 2, 14.35))
sketch8.addConstraint(Sketcher.Constraint("DistanceY", 0, 1, 0, 2, 1.28978))
sketch8.addConstraint(Sketcher.Constraint("DistanceX", 1, 1, 1, 2, 0.917518))
sketch8.addConstraint(Sketcher.Constraint("DistanceX", 5, 1, 5, 2, 0.704403))
pocket6 = body.newObject("PartDesign::Pocket", "Pocket005")
pocket6.Profile = sketch8
pocket6.Length = 1
doc.recompute()

chamfer = body.newObject("PartDesign::Chamfer", "Chamfer")
chamfer.Base = (pocket6, edges_at(pocket6, [
    (-19.1, 0, 0),
    (-18.514, 0, -14.914),
    (0, 0, -15.5),
    (18.514, 0, -14.914),
    (19.1, 0, 0),
    (18.514, 0, 14.914),
    (0, 0, 15.5),
    (-18.514, 0, 14.914),
]))
chamfer.Size = 1
doc.recompute()

fillet = body.newObject("PartDesign::Fillet", "Fillet")
fillet.Base = (chamfer, edges_at(chamfer, [
    (-9.1, 4.5, 5.5),
    (-9.1, 4.5, -5.5),
    (9.1, 4.5, -5.5),
    (9.1, 4.5, 5.5),
]))
fillet.Radius = 3.65

doc.recompute()
